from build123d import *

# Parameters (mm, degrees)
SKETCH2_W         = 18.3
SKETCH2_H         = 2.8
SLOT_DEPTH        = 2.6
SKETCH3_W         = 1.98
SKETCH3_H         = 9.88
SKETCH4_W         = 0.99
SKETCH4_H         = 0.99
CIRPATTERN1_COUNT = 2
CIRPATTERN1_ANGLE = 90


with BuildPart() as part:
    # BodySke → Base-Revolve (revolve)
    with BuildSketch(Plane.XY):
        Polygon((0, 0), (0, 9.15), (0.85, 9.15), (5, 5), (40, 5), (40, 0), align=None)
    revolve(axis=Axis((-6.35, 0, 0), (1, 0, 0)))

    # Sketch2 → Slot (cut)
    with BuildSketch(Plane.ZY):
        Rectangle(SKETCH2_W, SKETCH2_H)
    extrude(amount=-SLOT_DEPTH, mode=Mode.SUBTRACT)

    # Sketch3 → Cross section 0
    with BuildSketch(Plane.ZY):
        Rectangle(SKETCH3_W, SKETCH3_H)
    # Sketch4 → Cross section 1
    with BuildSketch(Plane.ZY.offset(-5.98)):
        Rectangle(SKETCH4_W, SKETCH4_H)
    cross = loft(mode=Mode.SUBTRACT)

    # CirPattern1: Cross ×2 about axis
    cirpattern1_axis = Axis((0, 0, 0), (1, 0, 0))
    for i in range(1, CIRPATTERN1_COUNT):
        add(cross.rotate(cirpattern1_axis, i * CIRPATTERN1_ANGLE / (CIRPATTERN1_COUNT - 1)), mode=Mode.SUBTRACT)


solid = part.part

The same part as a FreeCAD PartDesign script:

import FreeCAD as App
import Part
import Sketcher
Q = App.Units.Quantity

doc = App.newDocument("Part")
body = doc.addObject("PartDesign::Body", "Body")

# Sketch on XY plane
sketch1 = body.newObject("Sketcher::SketchObject", "Sketch")
sketch1.AttachmentSupport = (doc.getObject("XY_Plane"), [""])
sketch1.MapMode = "FlatFace"
sketch1.addGeometry([
    Part.LineSegment(App.Vector(0, 9.2, 0), App.Vector(0, 0, 0)),  # 0
    Part.LineSegment(App.Vector(0, 0, 0), App.Vector(40, 0, 0)),  # 1
    Part.LineSegment(App.Vector(40, 0, 0), App.Vector(40, 5, 0)),  # 2
    Part.LineSegment(App.Vector(40, 5, 0), App.Vector(5, 5, 0)),  # 3
    Part.LineSegment(App.Vector(5, 5, 0), App.Vector(0.8, 9.2, 0)),  # 4
    Part.LineSegment(App.Vector(0.8, 9.2, 0), App.Vector(0, 9.2, 0)),  # 5
], False)
sketch1.addConstraint([
    Sketcher.Constraint("Coincident", 0, 2, 1, 1),
    Sketcher.Constraint("Coincident", 1, 2, 2, 1),
    Sketcher.Constraint("Coincident", 2, 2, 3, 1),
    Sketcher.Constraint("Coincident", 3, 2, 4, 1),
    Sketcher.Constraint("Coincident", 4, 2, 5, 1),
    Sketcher.Constraint("Coincident", 5, 2, 0, 1),
    Sketcher.Constraint("Vertical", 0),
    Sketcher.Constraint("Horizontal", 1),
    Sketcher.Constraint("Vertical", 2),
    Sketcher.Constraint("Horizontal", 3),
    Sketcher.Constraint("Horizontal", 5),
    Sketcher.Constraint("Coincident", 0, 2, -1, 1),
    Sketcher.Constraint("DistanceX", 1, 1, 1, 2, Q("40 mm")),
    Sketcher.Constraint("DistanceX", 3, 2, 3, 1, Q("35 mm")),
    Sketcher.Constraint("DistanceY", 2, 1, 2, 2, Q("5 mm")),
    Sketcher.Constraint("Angle", 4, Q("135 deg")),
    Sketcher.Constraint("DistanceX", 5, 2, 5, 1, Q("0.85 mm")),
])
revolution = body.newObject("PartDesign::Revolution", "Revolution")
revolution.Profile = sketch1
revolution.ReferenceAxis = (sketch1, ["H_Axis"])
revolution.Angle = 360

# Sketch on YZ plane
sketch2 = body.newObject("Sketcher::SketchObject", "Sketch001")
sketch2.AttachmentSupport = (doc.getObject("YZ_Plane"), [""])
sketch2.MapMode = "FlatFace"
sketch2.addGeometry([
    Part.LineSegment(App.Vector(1.4, -9.2, 0), App.Vector(-1.4, -9.2, 0)),
    Part.LineSegment(App.Vector(-1.4, -9.2, 0), App.Vector(-1.4, 9.2, 0)),
    Part.LineSegment(App.Vector(-1.4, 9.2, 0), App.Vector(1.4, 9.2, 0)),
    Part.LineSegment(App.Vector(1.4, 9.2, 0), App.Vector(1.4, -9.2, 0)),
], False)
sketch2.addConstraint([
    Sketcher.Constraint("Coincident", 0, 2, 1, 1),
    Sketcher.Constraint("Coincident", 1, 2, 2, 1),
    Sketcher.Constraint("Coincident", 2, 2, 3, 1),
    Sketcher.Constraint("Coincident", 3, 2, 0, 1),
    Sketcher.Constraint("Horizontal", 0),
    Sketcher.Constraint("Vertical", 1),
    Sketcher.Constraint("Horizontal", 2),
    Sketcher.Constraint("Vertical", 3),
    Sketcher.Constraint("Symmetric", 0, 2, 2, 2, -1, 1),
    Sketcher.Constraint("DistanceX", 0, 2, 0, 1, Q("2.8 mm")),
    Sketcher.Constraint("DistanceY", 1, 1, 1, 2, Q("18.3 mm")),
])
pocket1 = body.newObject("PartDesign::Pocket", "Pocket")
pocket1.Profile = sketch2
pocket1.Length = 2.6
pocket1.Reversed = True

# Sketch on YZ plane
sketch3 = body.newObject("Sketcher::SketchObject", "Sketch002")
sketch3.AttachmentSupport = (doc.getObject("YZ_Plane"), [""])
sketch3.MapMode = "FlatFace"
sketch3.addGeometry([
    Part.LineSegment(App.Vector(4.9, -1, 0), App.Vector(-4.9, -1, 0)),
    Part.LineSegment(App.Vector(-4.9, -1, 0), App.Vector(-4.9, 1, 0)),
    Part.LineSegment(App.Vector(-4.9, 1, 0), App.Vector(4.9, 1, 0)),
    Part.LineSegment(App.Vector(4.9, 1, 0), App.Vector(4.9, -1, 0)),
], False)
sketch3.addConstraint([
    Sketcher.Constraint("Coincident", 0, 2, 1, 1),
    Sketcher.Constraint("Coincident", 1, 2, 2, 1),
    Sketcher.Constraint("Coincident", 2, 2, 3, 1),
    Sketcher.Constraint("Coincident", 3, 2, 0, 1),
    Sketcher.Constraint("Horizontal", 0),
    Sketcher.Constraint("Vertical", 1),
    Sketcher.Constraint("Horizontal", 2),
    Sketcher.Constraint("Vertical", 3),
    Sketcher.Constraint("Symmetric", 0, 2, 2, 2, -1, 1),
    Sketcher.Constraint("DistanceX", 0, 2, 0, 1, Q("9.88 mm")),
    Sketcher.Constraint("DistanceY", 1, 1, 1, 2, Q("1.98 mm")),
])

# Sketch on YZ plane
sketch4 = body.newObject("Sketcher::SketchObject", "Sketch003")
sketch4.AttachmentSupport = (doc.getObject("YZ_Plane"), [""])
sketch4.MapMode = "FlatFace"
sketch4.AttachmentOffset = App.Placement(App.Vector(0, 0, 5.98), App.Rotation())
sketch4.addGeometry([
    Part.LineSegment(App.Vector(0.5, -0.5, 0), App.Vector(-0.5, -0.5, 0)),
    Part.LineSegment(App.Vector(-0.5, -0.5, 0), App.Vector(-0.5, 0.5, 0)),
    Part.LineSegment(App.Vector(-0.5, 0.5, 0), App.Vector(0.5, 0.5, 0)),
    Part.LineSegment(App.Vector(0.5, 0.5, 0), App.Vector(0.5, -0.5, 0)),
], False)
sketch4.addConstraint([
    Sketcher.Constraint("Coincident", 0, 2, 1, 1),
    Sketcher.Constraint("Coincident", 1, 2, 2, 1),
    Sketcher.Constraint("Coincident", 2, 2, 3, 1),
    Sketcher.Constraint("Coincident", 3, 2, 0, 1),
    Sketcher.Constraint("Horizontal", 0),
    Sketcher.Constraint("Vertical", 1),
    Sketcher.Constraint("Horizontal", 2),
    Sketcher.Constraint("Vertical", 3),
    Sketcher.Constraint("Symmetric", 0, 2, 2, 2, -1, 1),
    Sketcher.Constraint("Equal", 2, 1),
    Sketcher.Constraint("DistanceX", 0, 2, 0, 1, Q("0.99 mm")),
])

subtractiveloft = body.newObject("PartDesign::SubtractiveLoft", "SubtractiveLoft")
subtractiveloft.Profile = sketch3
subtractiveloft.Sections = [sketch4]
doc.recompute()

polarpattern = body.newObject("PartDesign::PolarPattern", "PolarPattern")
polarpattern.Originals = [subtractiveloft]
polarpattern.Axis = (doc.getObject("X_Axis"), [""])
polarpattern.Angle = 90
polarpattern.Occurrences = 2
body.Tip = polarpattern

doc.recompute()
